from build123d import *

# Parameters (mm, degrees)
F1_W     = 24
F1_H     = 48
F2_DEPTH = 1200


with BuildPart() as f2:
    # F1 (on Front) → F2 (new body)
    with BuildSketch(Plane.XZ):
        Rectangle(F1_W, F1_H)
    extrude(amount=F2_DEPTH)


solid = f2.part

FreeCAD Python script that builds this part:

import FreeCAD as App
import Part
import Sketcher
from FreeCAD import Vector
Q = App.Units.Quantity

doc = App.newDocument("Part")
params = doc.addObject("Spreadsheet::Sheet", "Params")
for row, (alias, value) in enumerate([
    ("sketch1_width", "24 mm"),
    ("sketch1_height", "48 mm"),
    ("pad1_length", "1200 mm"),
], start=1):
    params.set(f"A{row}", alias)
    params.set(f"B{row}", "=" + value)
    params.setAlias(f"B{row}", alias)

body = doc.addObject("PartDesign::Body", "Body")

sketch1 = body.newObject("Sketcher::SketchObject", "Sketch")
sketch1.AttachmentSupport = (doc.getObject("XZ_Plane"), [""])
sketch1.MapMode = "FlatFace"
sketch1.addGeometry([
    Part.LineSegment(Vector(-12, 24, 0), Vector(-12, -24, 0)),
    Part.LineSegment(Vector(-12, -24, 0), Vector(12, -24, 0)),
    Part.LineSegment(Vector(12, -24, 0), Vector(12, 24, 0)),
    Part.LineSegment(Vector(12, 24, 0), Vector(-12, 24, 0)),
], False)
sketch1.addConstraint([
    Sketcher.Constraint("Coincident", 0, 2, 1, 1),
    Sketcher.Constraint("Coincident", 1, 2, 2, 1),
    Sketcher.Constraint("Coincident", 2, 2, 3, 1),
    Sketcher.Constraint("Coincident", 3, 2, 0, 1),
    Sketcher.Constraint("Vertical", 0),
    Sketcher.Constraint("Horizontal", 1),
    Sketcher.Constraint("Vertical", 2),
    Sketcher.Constraint("Horizontal", 3),
    Sketcher.Constraint("Symmetric", 0, 2, 2, 2, -1, 1),
    Sketcher.Constraint("DistanceX", 1, 1, 1, 2, Q("24 mm")),
    Sketcher.Constraint("DistanceY", 0, 2, 0, 1, Q("48 mm")),
])
sketch1.setExpression("Constraints[9]", "Params.sketch1_width")
sketch1.setExpression("Constraints[10]", "Params.sketch1_height")
pad1 = body.newObject("PartDesign::Pad", "Pad")
pad1.Profile = sketch1
pad1.setExpression("Length", "Params.pad1_length")

doc.recompute()
